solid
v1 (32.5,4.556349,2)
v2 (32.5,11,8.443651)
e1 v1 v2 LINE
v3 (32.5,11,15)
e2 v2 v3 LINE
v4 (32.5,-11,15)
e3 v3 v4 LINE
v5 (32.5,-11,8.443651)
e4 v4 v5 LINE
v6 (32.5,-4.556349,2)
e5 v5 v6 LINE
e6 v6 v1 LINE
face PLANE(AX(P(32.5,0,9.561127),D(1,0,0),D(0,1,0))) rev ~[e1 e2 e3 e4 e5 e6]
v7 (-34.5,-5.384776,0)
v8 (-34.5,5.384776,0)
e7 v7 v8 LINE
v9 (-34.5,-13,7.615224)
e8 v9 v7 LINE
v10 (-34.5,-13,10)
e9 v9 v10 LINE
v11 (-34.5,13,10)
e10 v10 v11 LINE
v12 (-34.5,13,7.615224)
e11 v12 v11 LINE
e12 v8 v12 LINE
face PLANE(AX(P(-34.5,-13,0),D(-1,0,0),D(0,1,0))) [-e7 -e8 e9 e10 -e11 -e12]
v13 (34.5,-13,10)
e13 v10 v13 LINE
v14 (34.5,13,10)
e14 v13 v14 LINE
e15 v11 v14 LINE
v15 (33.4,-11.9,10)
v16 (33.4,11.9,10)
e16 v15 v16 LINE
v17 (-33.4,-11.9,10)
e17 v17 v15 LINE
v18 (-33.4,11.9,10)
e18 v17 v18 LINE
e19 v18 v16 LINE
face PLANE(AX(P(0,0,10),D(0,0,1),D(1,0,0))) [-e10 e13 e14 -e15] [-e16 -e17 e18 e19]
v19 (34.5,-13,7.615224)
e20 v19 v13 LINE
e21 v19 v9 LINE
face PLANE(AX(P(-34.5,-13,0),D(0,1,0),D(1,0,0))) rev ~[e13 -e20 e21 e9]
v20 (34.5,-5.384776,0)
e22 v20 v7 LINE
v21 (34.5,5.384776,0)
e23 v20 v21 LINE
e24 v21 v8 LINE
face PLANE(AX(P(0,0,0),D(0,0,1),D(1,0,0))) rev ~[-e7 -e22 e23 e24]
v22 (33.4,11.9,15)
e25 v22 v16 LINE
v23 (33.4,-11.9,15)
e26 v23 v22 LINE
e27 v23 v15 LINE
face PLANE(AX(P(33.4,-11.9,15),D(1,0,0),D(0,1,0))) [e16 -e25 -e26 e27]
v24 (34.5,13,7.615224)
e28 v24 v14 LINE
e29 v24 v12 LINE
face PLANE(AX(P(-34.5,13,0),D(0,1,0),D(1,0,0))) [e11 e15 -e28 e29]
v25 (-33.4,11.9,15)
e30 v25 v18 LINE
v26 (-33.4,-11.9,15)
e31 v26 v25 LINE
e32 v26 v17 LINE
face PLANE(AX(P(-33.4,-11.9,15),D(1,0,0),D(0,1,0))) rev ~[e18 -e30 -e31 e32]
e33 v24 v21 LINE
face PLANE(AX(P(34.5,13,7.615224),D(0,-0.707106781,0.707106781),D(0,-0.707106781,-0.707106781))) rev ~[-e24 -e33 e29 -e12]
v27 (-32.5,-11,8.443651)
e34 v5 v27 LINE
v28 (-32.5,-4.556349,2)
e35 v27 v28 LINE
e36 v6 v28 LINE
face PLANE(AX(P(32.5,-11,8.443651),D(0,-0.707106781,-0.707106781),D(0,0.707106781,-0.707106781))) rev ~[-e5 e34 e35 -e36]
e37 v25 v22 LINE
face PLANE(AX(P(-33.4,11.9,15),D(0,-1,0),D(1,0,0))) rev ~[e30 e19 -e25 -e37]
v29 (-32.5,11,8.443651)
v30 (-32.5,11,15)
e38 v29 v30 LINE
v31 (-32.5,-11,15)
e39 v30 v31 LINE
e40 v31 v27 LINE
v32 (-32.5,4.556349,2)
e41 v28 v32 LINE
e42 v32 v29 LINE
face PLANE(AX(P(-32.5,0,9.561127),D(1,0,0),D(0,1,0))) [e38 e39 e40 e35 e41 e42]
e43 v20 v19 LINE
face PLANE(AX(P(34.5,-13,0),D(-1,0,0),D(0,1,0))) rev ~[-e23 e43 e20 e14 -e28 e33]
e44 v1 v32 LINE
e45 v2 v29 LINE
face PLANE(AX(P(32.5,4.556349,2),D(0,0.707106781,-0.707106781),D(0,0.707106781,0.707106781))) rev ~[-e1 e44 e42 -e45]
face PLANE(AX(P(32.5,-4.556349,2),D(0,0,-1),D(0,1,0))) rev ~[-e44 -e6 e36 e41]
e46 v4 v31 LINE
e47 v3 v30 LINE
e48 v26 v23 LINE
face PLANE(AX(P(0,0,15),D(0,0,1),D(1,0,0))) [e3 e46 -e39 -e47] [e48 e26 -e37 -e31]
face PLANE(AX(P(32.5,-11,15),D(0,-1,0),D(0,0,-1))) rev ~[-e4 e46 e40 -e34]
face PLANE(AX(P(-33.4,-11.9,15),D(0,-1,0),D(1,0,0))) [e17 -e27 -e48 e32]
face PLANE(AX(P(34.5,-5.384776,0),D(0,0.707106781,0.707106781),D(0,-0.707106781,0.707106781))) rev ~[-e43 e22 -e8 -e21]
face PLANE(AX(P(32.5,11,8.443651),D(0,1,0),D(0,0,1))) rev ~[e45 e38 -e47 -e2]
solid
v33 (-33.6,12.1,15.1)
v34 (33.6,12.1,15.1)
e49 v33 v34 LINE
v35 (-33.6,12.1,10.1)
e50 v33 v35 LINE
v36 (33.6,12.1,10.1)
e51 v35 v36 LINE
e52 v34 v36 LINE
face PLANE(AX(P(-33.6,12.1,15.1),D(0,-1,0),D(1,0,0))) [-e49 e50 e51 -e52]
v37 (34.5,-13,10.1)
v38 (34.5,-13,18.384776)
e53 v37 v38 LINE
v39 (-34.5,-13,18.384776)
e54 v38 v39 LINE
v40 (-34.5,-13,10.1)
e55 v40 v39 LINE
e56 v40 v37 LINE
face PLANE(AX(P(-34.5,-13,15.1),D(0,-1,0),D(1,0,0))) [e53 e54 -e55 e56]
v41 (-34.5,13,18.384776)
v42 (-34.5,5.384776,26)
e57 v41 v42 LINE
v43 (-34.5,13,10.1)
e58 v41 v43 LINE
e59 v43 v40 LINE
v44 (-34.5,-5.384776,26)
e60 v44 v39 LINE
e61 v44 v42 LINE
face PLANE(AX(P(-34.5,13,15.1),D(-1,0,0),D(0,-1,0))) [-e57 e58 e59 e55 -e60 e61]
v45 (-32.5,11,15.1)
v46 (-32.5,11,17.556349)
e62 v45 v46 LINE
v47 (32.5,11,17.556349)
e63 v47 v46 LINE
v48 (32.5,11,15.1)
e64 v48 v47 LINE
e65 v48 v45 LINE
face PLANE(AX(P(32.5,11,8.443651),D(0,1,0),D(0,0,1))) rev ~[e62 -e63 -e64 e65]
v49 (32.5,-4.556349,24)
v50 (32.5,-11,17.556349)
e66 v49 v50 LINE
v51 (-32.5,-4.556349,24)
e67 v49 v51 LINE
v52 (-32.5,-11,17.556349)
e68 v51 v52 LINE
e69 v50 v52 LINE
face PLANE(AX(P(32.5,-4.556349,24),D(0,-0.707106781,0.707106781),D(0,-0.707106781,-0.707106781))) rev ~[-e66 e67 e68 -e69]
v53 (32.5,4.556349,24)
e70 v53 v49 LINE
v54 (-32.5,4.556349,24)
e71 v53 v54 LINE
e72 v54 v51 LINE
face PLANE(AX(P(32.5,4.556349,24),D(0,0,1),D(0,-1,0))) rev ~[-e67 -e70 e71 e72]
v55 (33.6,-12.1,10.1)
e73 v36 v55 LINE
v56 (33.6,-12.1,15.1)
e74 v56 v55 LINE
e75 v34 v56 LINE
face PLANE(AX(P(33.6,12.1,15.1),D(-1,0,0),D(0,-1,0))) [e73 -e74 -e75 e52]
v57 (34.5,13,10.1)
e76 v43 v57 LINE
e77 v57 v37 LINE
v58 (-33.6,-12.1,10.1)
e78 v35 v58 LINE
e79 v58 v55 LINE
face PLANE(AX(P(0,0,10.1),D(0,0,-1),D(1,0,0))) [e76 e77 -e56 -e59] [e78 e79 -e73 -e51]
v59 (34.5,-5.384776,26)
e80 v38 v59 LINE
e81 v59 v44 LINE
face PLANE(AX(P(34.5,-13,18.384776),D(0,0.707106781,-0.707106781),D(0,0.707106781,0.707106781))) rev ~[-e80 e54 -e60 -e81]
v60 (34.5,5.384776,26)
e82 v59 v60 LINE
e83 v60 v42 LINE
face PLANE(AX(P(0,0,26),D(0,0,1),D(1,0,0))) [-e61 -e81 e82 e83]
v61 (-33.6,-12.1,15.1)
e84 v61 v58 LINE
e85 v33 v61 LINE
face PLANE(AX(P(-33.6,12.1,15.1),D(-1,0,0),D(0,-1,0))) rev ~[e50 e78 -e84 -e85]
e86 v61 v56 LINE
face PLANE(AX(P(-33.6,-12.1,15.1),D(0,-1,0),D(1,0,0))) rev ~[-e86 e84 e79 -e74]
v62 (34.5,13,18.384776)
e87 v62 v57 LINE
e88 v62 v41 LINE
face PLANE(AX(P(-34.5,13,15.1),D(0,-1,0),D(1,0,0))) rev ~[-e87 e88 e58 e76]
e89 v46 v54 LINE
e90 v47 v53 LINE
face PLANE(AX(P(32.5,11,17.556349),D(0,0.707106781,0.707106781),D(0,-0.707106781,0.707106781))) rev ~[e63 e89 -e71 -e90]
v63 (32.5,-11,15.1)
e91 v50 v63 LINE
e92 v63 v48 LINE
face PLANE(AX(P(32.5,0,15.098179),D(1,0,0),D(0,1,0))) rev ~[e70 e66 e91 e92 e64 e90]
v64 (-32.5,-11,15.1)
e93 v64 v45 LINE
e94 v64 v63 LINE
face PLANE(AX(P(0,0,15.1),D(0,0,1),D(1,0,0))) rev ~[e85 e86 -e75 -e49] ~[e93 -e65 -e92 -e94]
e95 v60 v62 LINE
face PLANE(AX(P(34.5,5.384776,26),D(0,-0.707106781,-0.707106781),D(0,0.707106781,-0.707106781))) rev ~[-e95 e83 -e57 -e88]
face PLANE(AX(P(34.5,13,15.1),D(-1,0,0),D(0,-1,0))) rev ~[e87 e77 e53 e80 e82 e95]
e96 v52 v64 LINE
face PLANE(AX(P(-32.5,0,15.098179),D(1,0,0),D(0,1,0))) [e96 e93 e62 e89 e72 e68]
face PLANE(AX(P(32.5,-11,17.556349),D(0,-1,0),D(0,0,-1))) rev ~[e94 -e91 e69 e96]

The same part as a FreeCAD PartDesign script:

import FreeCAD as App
import Part
import Sketcher


def add_polygon(sketch, points):
    """Adds a closed chain of lines whose ends are joined by coincident constraints."""
    first, n = sketch.GeometryCount, len(points)
    for a, b in zip(points, points[1:] + points[:1]):
        sketch.addGeometry(Part.LineSegment(App.Vector(*a, 0), App.Vector(*b, 0)), False)
    for i in range(n):
        sketch.addConstraint(Sketcher.Constraint("Coincident", first + i, 2, first + (i + 1) % n, 1))

doc = App.newDocument("Part")
params = doc.addObject("Spreadsheet::Sheet", "Params")
for row, (alias, value) in enumerate([
    ("sketch1_width", "69 mm"),
    ("sketch1_height", "26 mm"),
    ("pad1_length", "15 mm"),
    ("sketch2_width", "22 mm"),
    ("pocket1_length", "65 mm"),
    ("sketch3_width", "69 mm"),
    ("sketch3_height", "26 mm"),
    ("sketch3_width2", "66.8 mm"),
    ("sketch3_height2", "23.8 mm"),
    ("pocket2_length", "5 mm"),
    ("sketch5_width", "69 mm"),
    ("sketch5_height", "26 mm"),
    ("pad2_length", "10.9 mm"),
    ("sketch6_width", "69 mm"),
    ("sketch6_height", "26 mm"),
    ("sketch6_width2", "67.2 mm"),
    ("sketch6_height2", "24.2 mm"),
    ("pad3_length", "5 mm"),
    ("sketch7_width", "22 mm"),
    ("pocket4_length", "65 mm"),
], start=1):
    params.set(f"A{row}", alias)
    params.set(f"B{row}", "=" + value)
    params.setAlias(f"B{row}", alias)

body = doc.addObject("PartDesign::Body", "Body")

# Sketch on XY plane
sketch1 = body.newObject("Sketcher::SketchObject", "Sketch")
sketch1.AttachmentSupport = (doc.getObject("XY_Plane"), [""])
sketch1.MapMode = "FlatFace"
add_polygon(sketch1, [(-34, 13), (-34, -13), (34, -13), (34, 13)])  # lines 0-3
sketch1.addConstraint(Sketcher.Constraint("Vertical", 0))
sketch1.addConstraint(Sketcher.Constraint("Horizontal", 1))
sketch1.addConstraint(Sketcher.Constraint("Vertical", 2))
sketch1.addConstraint(Sketcher.Constraint("Horizontal", 3))
sketch1.addConstraint(Sketcher.Constraint("Symmetric", 0, 2, 2, 2, -1, 1))
sketch1.addConstraint(Sketcher.Constraint("DistanceX", 1, 1, 1, 2, 69.0))
sketch1.addConstraint(Sketcher.Constraint("DistanceY", 0, 2, 0, 1, 26.0))
sketch1.setExpression("Constraints[9]", "Params.sketch1_width")
sketch1.setExpression("Constraints[10]", "Params.sketch1_height")
pad1 = body.newObject("PartDesign::Pad", "Pad")
pad1.Profile = sketch1
pad1.setExpression("Length", "Params.pad1_length")

# Sketch on YZ plane
sketch2 = body.newObject("Sketcher::SketchObject", "Sketch001")
sketch2.AttachmentSupport = (doc.getObject("YZ_Plane"), [""])
sketch2.MapMode = "FlatFace"
sketch2.AttachmentOffset = App.Placement(App.Vector(0, 0, 32.5), App.Rotation())
add_polygon(sketch2, [(11, 15), (-11, 15), (-11, 8), (-5, 2), (5, 2), (11, 8)])  # lines 0-5
sketch2.addConstraint(Sketcher.Constraint("Horizontal", 0))
sketch2.addConstraint(Sketcher.Constraint("Vertical", 1))
sketch2.addConstraint(Sketcher.Constraint("Horizontal", 3))
sketch2.addConstraint(Sketcher.Constraint("Vertical", 5))
sketch2.addConstraint(Sketcher.Constraint("Symmetric", 1, 2, 4, 2, -2))
sketch2.addConstraint(Sketcher.Constraint("Perpendicular", 2, 4))
sketch2.addConstraint(Sketcher.Constraint("Equal", 2, 4))
sketch2.addConstraint(Sketcher.Constraint("DistanceX", 0, 2, 0, 1, 22.0))
sketch2.addConstraint(Sketcher.Constraint("DistanceY", -1, 1, 0, 2, 15.0))
sketch2.addConstraint(Sketcher.Constraint("DistanceY", -1, 1, 2, 2, 2.0))
sketch2.addConstraint(Sketcher.Constraint("DistanceX", 3, 1, 3, 2, 9.112698))
sketch2.setExpression("Constraints[13]", "Params.sketch2_width")
pocket1 = body.newObject("PartDesign::Pocket", "Pocket")
pocket1.Profile = sketch2
pocket1.setExpression("Length", "Params.pocket1_length")

# Sketch on XY plane
sketch3 = body.newObject("Sketcher::SketchObject", "Sketch002")
sketch3.AttachmentSupport = (doc.getObject("XY_Plane"), [""])
sketch3.MapMode = "FlatFace"
sketch3.AttachmentOffset = App.Placement(App.Vector(0, 0, 15), App.Rotation())
add_polygon(sketch3, [(-34, 13), (-34, -13), (34, -13), (34, 13)])  # lines 0-3
add_polygon(sketch3, [(33, -12), (-33, -12), (-33, 12), (33, 12)])  # lines 4-7
sketch3.addConstraint(Sketcher.Constraint("Vertical", 0))
sketch3.addConstraint(Sketcher.Constraint("Horizontal", 1))
sketch3.addConstraint(Sketcher.Constraint("Vertical", 2))
sketch3.addConstraint(Sketcher.Constraint("Horizontal", 3))
sketch3.addConstraint(Sketcher.Constraint("Horizontal", 4))
sketch3.addConstraint(Sketcher.Constraint("Vertical", 5))
sketch3.addConstraint(Sketcher.Constraint("Horizontal", 6))
sketch3.addConstraint(Sketcher.Constraint("Vertical", 7))
sketch3.addConstraint(Sketcher.Constraint("Symmetric", 0, 2, 2, 2, -1, 1))
sketch3.addConstraint(Sketcher.Constraint("Symmetric", 4, 2, 6, 2, -1, 1))
sketch3.addConstraint(Sketcher.Constraint("DistanceX", 1, 1, 1, 2, 69.0))
sketch3.addConstraint(Sketcher.Constraint("DistanceY", 0, 2, 0, 1, 26.0))
sketch3.addConstraint(Sketcher.Constraint("DistanceX", 4, 2, 4, 1, 66.8))
sketch3.addConstraint(Sketcher.Constraint("DistanceY", 5, 1, 5, 2, 23.8))
sketch3.setExpression("Constraints[18]", "Params.sketch3_width")
sketch3.setExpression("Constraints[19]", "Params.sketch3_height")
sketch3.setExpression("Constraints[20]", "Params.sketch3_width2")
sketch3.setExpression("Constraints[21]", "Params.sketch3_height2")
pocket2 = body.newObject("PartDesign::Pocket", "Pocket001")
pocket2.Profile = sketch3
pocket2.setExpression("Length", "Params.pocket2_length")

# Sketch on YZ plane
sketch4 = body.newObject("Sketcher::SketchObject", "Sketch003")
sketch4.AttachmentSupport = (doc.getObject("YZ_Plane"), [""])
sketch4.MapMode = "FlatFace"
sketch4.AttachmentOffset = App.Placement(App.Vector(0, 0, 34.5), App.Rotation())
add_polygon(sketch4, [(5, 0), (13, 0), (13, 8)])  # lines 0-2
add_polygon(sketch4, [(-5, 0), (-13, 8), (-13, 0)])  # lines 3-5
sketch4.addConstraint(Sketcher.Constraint("Horizontal", 0))
sketch4.addConstraint(Sketcher.Constraint("Vertical", 1))
sketch4.addConstraint(Sketcher.Constraint("Vertical", 4))
sketch4.addConstraint(Sketcher.Constraint("Horizontal", 5))
sketch4.addConstraint(Sketcher.Constraint("Symmetric", 0, 2, 4, 2, -1, 1))
sketch4.addConstraint(Sketcher.Constraint("Symmetric", 2, 2, 5, 2, -2))
sketch4.addConstraint(Sketcher.Constraint("Perpendicular", 2, 3))
sketch4.addConstraint(Sketcher.Constraint("Horizontal", 1, 2, 3, 2))
sketch4.addConstraint(Sketcher.Constraint("DistanceX", -1, 1, 0, 2, 13.0))
sketch4.addConstraint(Sketcher.Constraint("DistanceX", 0, 1, 0, 2, 7.615224))
pocket3 = body.newObject("PartDesign::Pocket", "Pocket002")
pocket3.Profile = sketch4
pocket3.Type = "ThroughAll"
body2 = doc.addObject("PartDesign::Body", "Body001")

# Sketch on XY plane
sketch5 = body2.newObject("Sketcher::SketchObject", "Sketch004")
sketch5.AttachmentSupport = (doc.getObject("XY_Plane001"), [""])
sketch5.MapMode = "FlatFace"
sketch5.AttachmentOffset = App.Placement(App.Vector(0, 0, 15.1), App.Rotation())
add_polygon(sketch5, [(-34, 13), (-34, -13), (34, -13), (34, 13)])  # lines 0-3
sketch5.addConstraint(Sketcher.Constraint("Vertical", 0))
sketch5.addConstraint(Sketcher.Constraint("Horizontal", 1))
sketch5.addConstraint(Sketcher.Constraint("Vertical", 2))
sketch5.addConstraint(Sketcher.Constraint("Horizontal", 3))
sketch5.addConstraint(Sketcher.Constraint("Symmetric", 0, 2, 2, 2, -1, 1))
sketch5.addConstraint(Sketcher.Constraint("DistanceX", 1, 1, 1, 2, 69.0))
sketch5.addConstraint(Sketcher.Constraint("DistanceY", 0, 2, 0, 1, 26.0))
sketch5.setExpression("Constraints[9]", "Params.sketch5_width")
sketch5.setExpression("Constraints[10]", "Params.sketch5_height")
pad2 = body2.newObject("PartDesign::Pad", "Pad001")
pad2.Profile = sketch5
pad2.setExpression("Length", "Params.pad2_length")

# Sketch on XY plane
sketch6 = body2.newObject("Sketcher::SketchObject", "Sketch005")
sketch6.AttachmentSupport = (doc.getObject("XY_Plane001"), [""])
sketch6.MapMode = "FlatFace"
sketch6.AttachmentOffset = App.Placement(App.Vector(0, 0, 15.1), App.Rotation())
add_polygon(sketch6, [(-34, -13), (-34, 13), (34, 13), (34, -13)])  # lines 0-3
add_polygon(sketch6, [(34, 12), (-34, 12), (-34, -12), (34, -12)])  # lines 4-7
sketch6.addConstraint(Sketcher.Constraint("Vertical", 0))
sketch6.addConstraint(Sketcher.Constraint("Horizontal", 1))
sketch6.addConstraint(Sketcher.Constraint("Vertical", 2))
sketch6.addConstraint(Sketcher.Constraint("Horizontal", 3))
sketch6.addConstraint(Sketcher.Constraint("Horizontal", 4))
sketch6.addConstraint(Sketcher.Constraint("Vertical", 5))
sketch6.addConstraint(Sketcher.Constraint("Horizontal", 6))
sketch6.addConstraint(Sketcher.Constraint("Vertical", 7))
sketch6.addConstraint(Sketcher.Constraint("Symmetric", 0, 2, 2, 2, -1, 1))
sketch6.addConstraint(Sketcher.Constraint("Symmetric", 4, 2, 6, 2, -1, 1))
sketch6.addConstraint(Sketcher.Constraint("DistanceX", 1, 1, 1, 2, 69.0))
sketch6.addConstraint(Sketcher.Constraint("DistanceY", 0, 1, 0, 2, 26.0))
sketch6.addConstraint(Sketcher.Constraint("DistanceX", 4, 2, 4, 1, 67.2))
sketch6.addConstraint(Sketcher.Constraint("DistanceY", 5, 2, 5, 1, 24.2))
sketch6.setExpression("Constraints[18]", "Params.sketch6_width")
sketch6.setExpression("Constraints[19]", "Params.sketch6_height")
sketch6.setExpression("Constraints[20]", "Params.sketch6_width2")
sketch6.setExpression("Constraints[21]", "Params.sketch6_height2")
pad3 = body2.newObject("PartDesign::Pad", "Pad002")
pad3.Profile = sketch6
pad3.setExpression("Length", "Params.pad3_length")
pad3.Reversed = True

# Sketch on YZ plane
sketch7 = body2.newObject("Sketcher::SketchObject", "Sketch006")
sketch7.AttachmentSupport = (doc.getObject("YZ_Plane001"), [""])
sketch7.MapMode = "FlatFace"
sketch7.AttachmentOffset = App.Placement(App.Vector(0, 0, 32.5), App.Rotation())
add_polygon(sketch7, [(5, 24), (-5, 24), (-11, 18), (-11, 8), (11, 8), (11, 18)])  # lines 0-5
sketch7.addConstraint(Sketcher.Constraint("Horizontal", 0))
sketch7.addConstraint(Sketcher.Constraint("Vertical", 2))
sketch7.addConstraint(Sketcher.Constraint("Horizontal", 3))
sketch7.addConstraint(Sketcher.Constraint("Vertical", 4))
sketch7.addConstraint(Sketcher.Constraint("Symmetric", 1, 2, 4, 2, -2))
sketch7.addConstraint(Sketcher.Constraint("Perpendicular", 1, 5))
sketch7.addConstraint(Sketcher.Constraint("Equal", 0, 2))
sketch7.addConstraint(Sketcher.Constraint("Equal", 1, 5))
sketch7.addConstraint(Sketcher.Constraint("DistanceX", 3, 1, 3, 2, 22.0))
sketch7.addConstraint(Sketcher.Constraint("DistanceY", -1, 1, 0, 2, 24.0))
sketch7.addConstraint(Sketcher.Constraint("DistanceX", 0, 2, 0, 1, 9.112698))
sketch7.setExpression("Constraints[14]", "Params.sketch7_width")
pocket4 = body2.newObject("PartDesign::Pocket", "Pocket003")
pocket4.Profile = sketch7
pocket4.setExpression("Length", "Params.pocket4_length")

# Sketch on YZ plane
sketch8 = body2.newObject("Sketcher::SketchObject", "Sketch007")
sketch8.AttachmentSupport = (doc.getObject("YZ_Plane001"), [""])
sketch8.MapMode = "FlatFace"
sketch8.AttachmentOffset = App.Placement(App.Vector(0, 0, 34.5), App.Rotation())
add_polygon(sketch8, [(-13, 26), (-13, 18), (-5, 26)])  # lines 0-2
add_polygon(sketch8, [(5, 26), (13, 18), (13, 26)])  # lines 3-5
sketch8.addConstraint(Sketcher.Constraint("Vertical", 0))
sketch8.addConstraint(Sketcher.Constraint("Horizontal", 2))
sketch8.addConstraint(Sketcher.Constraint("Vertical", 4))
sketch8.addConstraint(Sketcher.Constraint("Horizontal", 5))
sketch8.addConstraint(Sketcher.Constraint("Symmetric", 0, 2, 3, 2, -2))
sketch8.addConstraint(Sketcher.Constraint("Symmetric", 1, 2, 5, 2, -2))
sketch8.addConstraint(Sketcher.Constraint("Perpendicular", 1, 3))
sketch8.addConstraint(Sketcher.Constraint("DistanceX", 0, 2, -1, 1, 13.0))
sketch8.addConstraint(Sketcher.Constraint("DistanceY", -1, 1, 1, 2, 26.0))
sketch8.addConstraint(Sketcher.Constraint("DistanceX", 2, 2, 2, 1, 7.615224))
pocket5 = body2.newObject("PartDesign::Pocket", "Pocket004")
pocket5.Profile = sketch8
pocket5.Type = "ThroughAll"

doc.recompute()
